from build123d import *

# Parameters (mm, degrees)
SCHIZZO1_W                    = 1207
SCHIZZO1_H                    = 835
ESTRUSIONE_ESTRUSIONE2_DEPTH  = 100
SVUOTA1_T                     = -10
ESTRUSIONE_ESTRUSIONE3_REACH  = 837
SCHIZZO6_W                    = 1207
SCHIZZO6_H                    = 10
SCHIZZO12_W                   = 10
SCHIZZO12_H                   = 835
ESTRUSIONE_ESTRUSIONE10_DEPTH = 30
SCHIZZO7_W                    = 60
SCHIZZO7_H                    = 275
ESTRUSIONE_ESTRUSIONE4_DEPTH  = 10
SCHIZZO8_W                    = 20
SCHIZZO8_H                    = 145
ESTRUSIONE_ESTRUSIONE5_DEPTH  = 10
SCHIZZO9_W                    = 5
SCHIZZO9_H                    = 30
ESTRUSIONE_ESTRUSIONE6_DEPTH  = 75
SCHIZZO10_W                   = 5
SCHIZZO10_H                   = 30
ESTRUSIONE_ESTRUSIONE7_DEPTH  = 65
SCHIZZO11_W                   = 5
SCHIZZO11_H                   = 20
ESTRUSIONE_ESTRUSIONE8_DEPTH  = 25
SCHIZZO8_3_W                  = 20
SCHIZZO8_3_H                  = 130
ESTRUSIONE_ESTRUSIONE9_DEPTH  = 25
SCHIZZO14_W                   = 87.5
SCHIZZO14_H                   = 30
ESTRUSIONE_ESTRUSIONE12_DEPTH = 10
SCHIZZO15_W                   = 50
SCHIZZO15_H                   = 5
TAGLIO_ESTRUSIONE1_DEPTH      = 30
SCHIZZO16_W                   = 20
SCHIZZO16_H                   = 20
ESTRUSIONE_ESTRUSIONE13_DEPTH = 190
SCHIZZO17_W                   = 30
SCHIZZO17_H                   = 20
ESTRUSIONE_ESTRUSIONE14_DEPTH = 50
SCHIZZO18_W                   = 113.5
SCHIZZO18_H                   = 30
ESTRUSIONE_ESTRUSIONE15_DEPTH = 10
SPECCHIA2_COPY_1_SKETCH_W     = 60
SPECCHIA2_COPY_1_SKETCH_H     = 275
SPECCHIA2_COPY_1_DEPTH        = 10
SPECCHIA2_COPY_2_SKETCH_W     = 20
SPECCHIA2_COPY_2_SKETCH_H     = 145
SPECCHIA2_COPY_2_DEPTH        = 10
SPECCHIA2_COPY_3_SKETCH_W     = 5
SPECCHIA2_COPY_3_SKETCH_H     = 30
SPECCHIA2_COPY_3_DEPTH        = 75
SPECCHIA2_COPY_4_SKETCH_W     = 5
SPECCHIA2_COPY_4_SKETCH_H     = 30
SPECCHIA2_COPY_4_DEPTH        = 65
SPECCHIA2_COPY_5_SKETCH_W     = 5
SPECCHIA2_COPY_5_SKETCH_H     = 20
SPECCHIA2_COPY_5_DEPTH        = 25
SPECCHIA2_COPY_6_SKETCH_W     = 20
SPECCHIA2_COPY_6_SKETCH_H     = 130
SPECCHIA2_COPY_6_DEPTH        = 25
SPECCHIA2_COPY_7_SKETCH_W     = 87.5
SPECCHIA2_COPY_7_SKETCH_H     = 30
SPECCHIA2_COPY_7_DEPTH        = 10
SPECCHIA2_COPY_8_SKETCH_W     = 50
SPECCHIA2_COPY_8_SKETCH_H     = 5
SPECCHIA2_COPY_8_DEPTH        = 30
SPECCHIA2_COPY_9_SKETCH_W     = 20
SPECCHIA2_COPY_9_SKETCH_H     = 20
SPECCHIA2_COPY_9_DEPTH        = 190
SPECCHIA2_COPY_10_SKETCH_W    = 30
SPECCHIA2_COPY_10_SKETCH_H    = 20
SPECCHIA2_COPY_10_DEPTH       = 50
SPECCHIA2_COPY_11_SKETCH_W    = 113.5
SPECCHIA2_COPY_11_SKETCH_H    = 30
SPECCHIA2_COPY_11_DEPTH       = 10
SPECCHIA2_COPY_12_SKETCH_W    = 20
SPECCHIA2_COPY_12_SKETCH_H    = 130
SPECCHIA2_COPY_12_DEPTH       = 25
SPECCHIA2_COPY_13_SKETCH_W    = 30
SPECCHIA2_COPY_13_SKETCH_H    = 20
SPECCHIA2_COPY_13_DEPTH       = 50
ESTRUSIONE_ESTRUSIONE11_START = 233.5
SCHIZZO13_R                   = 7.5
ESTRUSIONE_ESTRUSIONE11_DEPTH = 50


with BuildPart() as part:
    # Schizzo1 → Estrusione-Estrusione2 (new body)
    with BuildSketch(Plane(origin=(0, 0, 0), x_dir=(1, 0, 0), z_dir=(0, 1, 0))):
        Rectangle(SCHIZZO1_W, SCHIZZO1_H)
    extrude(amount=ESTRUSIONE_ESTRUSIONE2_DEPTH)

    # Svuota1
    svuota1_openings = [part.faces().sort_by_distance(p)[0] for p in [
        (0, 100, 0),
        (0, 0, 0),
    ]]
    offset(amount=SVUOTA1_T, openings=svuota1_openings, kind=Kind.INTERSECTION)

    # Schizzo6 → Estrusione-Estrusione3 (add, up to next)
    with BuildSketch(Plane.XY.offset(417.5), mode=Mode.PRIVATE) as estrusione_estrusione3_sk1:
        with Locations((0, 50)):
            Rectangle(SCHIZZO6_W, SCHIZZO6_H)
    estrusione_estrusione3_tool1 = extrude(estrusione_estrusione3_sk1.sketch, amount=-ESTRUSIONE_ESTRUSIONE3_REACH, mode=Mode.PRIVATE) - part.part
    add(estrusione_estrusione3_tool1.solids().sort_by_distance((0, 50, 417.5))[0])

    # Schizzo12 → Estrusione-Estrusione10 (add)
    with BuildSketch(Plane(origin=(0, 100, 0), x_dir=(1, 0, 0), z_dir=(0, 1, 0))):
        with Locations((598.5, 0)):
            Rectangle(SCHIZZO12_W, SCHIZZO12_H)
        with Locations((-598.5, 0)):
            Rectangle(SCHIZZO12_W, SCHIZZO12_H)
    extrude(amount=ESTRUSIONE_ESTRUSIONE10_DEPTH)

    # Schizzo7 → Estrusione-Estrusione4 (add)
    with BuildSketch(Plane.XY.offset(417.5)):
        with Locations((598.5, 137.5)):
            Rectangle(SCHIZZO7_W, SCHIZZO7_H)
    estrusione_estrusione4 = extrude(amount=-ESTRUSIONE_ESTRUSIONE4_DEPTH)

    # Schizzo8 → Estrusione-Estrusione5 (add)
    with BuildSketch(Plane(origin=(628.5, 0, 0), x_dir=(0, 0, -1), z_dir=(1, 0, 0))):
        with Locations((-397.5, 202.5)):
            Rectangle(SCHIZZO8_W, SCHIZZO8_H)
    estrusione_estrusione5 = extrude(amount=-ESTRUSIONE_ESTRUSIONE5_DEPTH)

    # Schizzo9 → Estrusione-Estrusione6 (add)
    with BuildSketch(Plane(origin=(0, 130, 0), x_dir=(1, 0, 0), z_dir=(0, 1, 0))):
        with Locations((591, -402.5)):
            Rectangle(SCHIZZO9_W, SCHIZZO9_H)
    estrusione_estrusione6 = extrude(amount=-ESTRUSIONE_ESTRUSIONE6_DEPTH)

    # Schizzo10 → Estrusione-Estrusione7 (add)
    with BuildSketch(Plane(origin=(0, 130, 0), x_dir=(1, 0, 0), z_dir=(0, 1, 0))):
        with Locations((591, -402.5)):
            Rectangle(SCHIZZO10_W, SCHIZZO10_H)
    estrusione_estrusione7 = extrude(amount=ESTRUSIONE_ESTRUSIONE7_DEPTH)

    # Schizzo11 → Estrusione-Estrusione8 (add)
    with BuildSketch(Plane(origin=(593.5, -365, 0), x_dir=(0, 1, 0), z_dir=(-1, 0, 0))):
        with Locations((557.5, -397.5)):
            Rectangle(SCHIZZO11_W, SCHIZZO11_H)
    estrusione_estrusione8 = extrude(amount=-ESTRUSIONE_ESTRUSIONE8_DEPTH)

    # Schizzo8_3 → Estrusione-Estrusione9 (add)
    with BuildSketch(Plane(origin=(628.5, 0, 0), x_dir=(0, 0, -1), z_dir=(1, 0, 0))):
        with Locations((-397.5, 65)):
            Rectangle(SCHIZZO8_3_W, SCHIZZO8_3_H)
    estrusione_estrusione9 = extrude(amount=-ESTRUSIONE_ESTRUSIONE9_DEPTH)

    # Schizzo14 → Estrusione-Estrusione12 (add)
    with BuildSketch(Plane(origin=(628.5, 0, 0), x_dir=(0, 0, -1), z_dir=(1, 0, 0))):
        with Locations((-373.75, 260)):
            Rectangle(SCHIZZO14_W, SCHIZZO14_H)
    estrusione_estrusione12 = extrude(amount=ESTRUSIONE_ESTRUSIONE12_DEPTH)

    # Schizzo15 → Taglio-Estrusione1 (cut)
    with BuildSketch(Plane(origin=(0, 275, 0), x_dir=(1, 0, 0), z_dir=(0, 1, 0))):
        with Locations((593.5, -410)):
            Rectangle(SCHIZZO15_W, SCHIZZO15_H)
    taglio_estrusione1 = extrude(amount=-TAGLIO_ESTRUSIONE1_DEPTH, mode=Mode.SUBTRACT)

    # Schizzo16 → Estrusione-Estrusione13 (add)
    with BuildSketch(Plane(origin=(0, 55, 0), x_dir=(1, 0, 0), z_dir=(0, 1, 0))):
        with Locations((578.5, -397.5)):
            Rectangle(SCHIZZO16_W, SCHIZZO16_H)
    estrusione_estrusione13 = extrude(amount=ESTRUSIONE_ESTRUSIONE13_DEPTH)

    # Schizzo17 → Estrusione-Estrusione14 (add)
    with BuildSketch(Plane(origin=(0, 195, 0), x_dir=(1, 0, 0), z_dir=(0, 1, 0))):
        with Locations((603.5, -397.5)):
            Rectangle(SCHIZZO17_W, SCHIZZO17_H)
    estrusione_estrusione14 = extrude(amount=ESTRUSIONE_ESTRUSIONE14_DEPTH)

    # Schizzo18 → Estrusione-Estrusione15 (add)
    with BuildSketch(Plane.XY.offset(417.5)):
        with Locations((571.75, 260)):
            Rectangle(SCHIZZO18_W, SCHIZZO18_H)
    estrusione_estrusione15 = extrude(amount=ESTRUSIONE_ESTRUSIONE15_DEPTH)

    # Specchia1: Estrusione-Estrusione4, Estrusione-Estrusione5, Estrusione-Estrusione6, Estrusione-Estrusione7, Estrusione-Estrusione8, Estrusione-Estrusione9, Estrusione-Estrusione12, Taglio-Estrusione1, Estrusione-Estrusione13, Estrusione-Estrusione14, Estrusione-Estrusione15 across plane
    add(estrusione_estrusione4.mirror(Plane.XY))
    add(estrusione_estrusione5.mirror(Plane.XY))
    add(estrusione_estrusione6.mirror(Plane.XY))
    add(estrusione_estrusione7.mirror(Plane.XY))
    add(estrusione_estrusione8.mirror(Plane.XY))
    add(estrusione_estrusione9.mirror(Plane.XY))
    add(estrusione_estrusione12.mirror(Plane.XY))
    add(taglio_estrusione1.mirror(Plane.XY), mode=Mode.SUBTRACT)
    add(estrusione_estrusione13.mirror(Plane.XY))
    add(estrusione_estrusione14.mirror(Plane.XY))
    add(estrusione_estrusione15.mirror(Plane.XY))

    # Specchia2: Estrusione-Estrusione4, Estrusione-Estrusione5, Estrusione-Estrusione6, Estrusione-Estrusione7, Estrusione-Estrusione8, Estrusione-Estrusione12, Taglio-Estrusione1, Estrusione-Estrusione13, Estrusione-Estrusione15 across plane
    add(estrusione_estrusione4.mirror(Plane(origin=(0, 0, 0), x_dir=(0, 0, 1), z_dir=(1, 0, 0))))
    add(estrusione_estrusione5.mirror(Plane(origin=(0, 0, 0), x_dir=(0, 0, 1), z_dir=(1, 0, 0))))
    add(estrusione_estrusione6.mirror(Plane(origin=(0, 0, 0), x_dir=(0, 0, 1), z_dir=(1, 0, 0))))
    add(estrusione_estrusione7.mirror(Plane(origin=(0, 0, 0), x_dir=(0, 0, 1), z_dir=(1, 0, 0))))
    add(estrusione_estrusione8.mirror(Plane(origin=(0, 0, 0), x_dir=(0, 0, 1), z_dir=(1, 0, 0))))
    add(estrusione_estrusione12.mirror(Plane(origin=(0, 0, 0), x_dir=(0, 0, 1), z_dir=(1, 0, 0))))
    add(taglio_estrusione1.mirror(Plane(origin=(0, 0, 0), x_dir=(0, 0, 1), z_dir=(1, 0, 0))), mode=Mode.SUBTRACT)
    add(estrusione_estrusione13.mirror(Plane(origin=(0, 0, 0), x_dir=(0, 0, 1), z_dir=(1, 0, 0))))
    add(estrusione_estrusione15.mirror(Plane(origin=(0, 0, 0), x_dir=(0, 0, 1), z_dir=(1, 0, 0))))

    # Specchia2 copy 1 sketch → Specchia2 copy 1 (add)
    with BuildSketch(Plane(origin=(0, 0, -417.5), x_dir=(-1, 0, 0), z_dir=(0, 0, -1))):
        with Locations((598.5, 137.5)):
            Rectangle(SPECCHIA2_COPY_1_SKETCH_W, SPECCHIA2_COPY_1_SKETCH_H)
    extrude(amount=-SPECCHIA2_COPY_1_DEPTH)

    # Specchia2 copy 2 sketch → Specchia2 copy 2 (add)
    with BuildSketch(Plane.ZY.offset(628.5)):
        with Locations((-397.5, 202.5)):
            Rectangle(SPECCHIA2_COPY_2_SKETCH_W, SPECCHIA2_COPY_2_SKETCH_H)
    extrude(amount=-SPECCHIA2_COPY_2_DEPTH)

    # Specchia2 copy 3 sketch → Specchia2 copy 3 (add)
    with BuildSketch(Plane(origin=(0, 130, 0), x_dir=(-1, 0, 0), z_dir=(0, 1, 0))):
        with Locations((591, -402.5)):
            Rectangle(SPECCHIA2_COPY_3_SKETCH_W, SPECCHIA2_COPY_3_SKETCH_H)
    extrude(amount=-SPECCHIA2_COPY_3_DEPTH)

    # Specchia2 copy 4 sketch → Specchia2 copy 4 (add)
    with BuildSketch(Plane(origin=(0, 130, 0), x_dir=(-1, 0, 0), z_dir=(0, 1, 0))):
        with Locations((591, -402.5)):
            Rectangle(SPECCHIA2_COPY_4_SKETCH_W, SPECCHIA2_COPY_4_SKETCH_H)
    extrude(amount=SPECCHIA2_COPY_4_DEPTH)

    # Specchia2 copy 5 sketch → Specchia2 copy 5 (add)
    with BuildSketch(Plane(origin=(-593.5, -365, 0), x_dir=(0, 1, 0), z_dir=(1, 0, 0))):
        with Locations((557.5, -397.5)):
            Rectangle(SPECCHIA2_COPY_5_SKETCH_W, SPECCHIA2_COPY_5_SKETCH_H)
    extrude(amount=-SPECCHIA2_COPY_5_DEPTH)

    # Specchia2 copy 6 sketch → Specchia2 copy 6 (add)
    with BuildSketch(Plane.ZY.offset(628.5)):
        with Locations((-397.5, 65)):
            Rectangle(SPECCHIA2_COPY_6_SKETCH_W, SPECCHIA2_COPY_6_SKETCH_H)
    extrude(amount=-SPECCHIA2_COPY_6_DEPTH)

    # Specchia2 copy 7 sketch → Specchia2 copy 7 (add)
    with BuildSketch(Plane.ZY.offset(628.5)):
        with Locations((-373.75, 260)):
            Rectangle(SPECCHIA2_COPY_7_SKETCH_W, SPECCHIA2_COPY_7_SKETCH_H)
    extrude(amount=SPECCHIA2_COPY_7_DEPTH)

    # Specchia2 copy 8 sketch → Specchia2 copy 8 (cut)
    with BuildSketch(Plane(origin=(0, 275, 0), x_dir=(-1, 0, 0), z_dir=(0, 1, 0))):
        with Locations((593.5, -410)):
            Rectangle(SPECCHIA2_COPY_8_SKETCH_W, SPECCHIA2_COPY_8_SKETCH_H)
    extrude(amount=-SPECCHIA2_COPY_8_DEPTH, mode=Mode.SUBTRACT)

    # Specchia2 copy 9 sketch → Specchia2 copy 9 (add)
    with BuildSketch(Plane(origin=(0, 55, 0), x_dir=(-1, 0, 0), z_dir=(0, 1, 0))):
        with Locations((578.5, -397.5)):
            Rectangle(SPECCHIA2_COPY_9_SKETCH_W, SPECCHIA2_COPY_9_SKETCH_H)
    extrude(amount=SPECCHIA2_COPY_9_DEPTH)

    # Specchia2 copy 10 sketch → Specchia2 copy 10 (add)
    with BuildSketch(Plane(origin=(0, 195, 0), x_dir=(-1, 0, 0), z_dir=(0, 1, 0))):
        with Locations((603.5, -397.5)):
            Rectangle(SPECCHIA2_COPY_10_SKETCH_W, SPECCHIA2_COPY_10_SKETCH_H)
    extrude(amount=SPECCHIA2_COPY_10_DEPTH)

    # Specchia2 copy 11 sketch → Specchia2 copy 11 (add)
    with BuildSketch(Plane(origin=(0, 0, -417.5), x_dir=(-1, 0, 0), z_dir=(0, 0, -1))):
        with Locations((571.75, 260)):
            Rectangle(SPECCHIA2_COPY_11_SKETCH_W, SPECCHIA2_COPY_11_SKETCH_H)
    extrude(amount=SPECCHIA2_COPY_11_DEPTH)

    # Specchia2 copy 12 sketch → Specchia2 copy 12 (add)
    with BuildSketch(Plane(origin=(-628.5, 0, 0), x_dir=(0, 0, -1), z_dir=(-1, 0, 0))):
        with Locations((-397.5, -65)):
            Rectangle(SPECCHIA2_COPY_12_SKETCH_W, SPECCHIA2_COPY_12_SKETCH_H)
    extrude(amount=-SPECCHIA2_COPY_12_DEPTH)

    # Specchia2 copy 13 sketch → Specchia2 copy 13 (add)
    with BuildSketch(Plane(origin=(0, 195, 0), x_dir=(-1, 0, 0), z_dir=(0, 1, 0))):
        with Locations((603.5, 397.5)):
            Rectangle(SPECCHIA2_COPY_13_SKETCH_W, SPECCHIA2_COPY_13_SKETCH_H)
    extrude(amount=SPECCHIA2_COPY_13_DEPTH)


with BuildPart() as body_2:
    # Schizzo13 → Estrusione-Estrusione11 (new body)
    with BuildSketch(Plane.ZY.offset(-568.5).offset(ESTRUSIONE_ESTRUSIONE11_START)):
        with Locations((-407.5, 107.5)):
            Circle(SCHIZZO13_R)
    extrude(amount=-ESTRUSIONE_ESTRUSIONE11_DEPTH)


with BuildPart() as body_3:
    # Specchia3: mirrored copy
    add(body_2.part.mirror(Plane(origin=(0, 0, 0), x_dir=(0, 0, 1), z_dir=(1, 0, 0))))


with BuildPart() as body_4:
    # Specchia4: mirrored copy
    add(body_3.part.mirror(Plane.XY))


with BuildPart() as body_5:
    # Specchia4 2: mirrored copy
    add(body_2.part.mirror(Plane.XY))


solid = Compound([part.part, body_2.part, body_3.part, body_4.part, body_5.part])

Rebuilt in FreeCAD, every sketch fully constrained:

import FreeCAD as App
import Part
import Sketcher
from FreeCAD import Vector
Q = App.Units.Quantity


def faces_at(feature, points):
    """Names of the faces that lie closest to the given points."""
    faces = feature.Shape.Faces
    near = lambda p: min(range(len(faces)), key=lambda i: faces[i].distToShape(Part.Vertex(*p))[0])
    return sorted({f"Face{near(p) + 1}" for p in points})

doc = App.newDocument("Part")
body = doc.addObject("PartDesign::Body", "Body")

sketch1 = body.newObject("Sketcher::SketchObject", "Sketch")
sketch1.AttachmentSupport = (doc.getObject("XZ_Plane"), [""])
sketch1.MapMode = "FlatFace"
sketch1.addGeometry([
    Part.LineSegment(Vector(-604, -418, 0), Vector(-604, 418, 0)),
    Part.LineSegment(Vector(-604, 418, 0), Vector(604, 418, 0)),
    Part.LineSegment(Vector(604, 418, 0), Vector(604, -418, 0)),
    Part.LineSegment(Vector(604, -418, 0), Vector(-604, -418, 0)),
], False)
sketch1.addConstraint([
    Sketcher.Constraint("Coincident", 0, 2, 1, 1),
    Sketcher.Constraint("Coincident", 1, 2, 2, 1),
    Sketcher.Constraint("Coincident", 2, 2, 3, 1),
    Sketcher.Constraint("Coincident", 3, 2, 0, 1),
    Sketcher.Constraint("Vertical", 0),
    Sketcher.Constraint("Horizontal", 1),
    Sketcher.Constraint("Vertical", 2),
    Sketcher.Constraint("Horizontal", 3),
    Sketcher.Constraint("Symmetric", 0, 2, 2, 2, -1, 1),
    Sketcher.Constraint("DistanceX", 1, 1, 1, 2, Q("1207 mm")),
    Sketcher.Constraint("DistanceY", 0, 1, 0, 2, Q("835 mm")),
])
pad1 = body.newObject("PartDesign::Pad", "Pad")
pad1.Profile = sketch1
pad1.Length = 100
pad1.Reversed = True
doc.recompute()

thickness = body.newObject("PartDesign::Thickness", "Thickness")
thickness.Base = (pad1, faces_at(pad1, [(0, 100, 0), (0, 0, 0)]))
thickness.Value = 10
thickness.Reversed = True
thickness.Join = "Intersection"

sketch2 = body.newObject("Sketcher::SketchObject", "Sketch001")
sketch2.AttachmentSupport = (doc.getObject("XY_Plane"), [""])
sketch2.MapMode = "FlatFace"
sketch2.AttachmentOffset = App.Placement(Vector(0, 0, 417.5), App.Rotation())
sketch2.addGeometry([
    Part.LineSegment(Vector(-604, 55, 0), Vector(-604, 45, 0)),
    Part.LineSegment(Vector(-604, 45, 0), Vector(604, 45, 0)),
    Part.LineSegment(Vector(604, 45, 0), Vector(604, 55, 0)),
    Part.LineSegment(Vector(604, 55, 0), Vector(-604, 55, 0)),
], False)
sketch2.addConstraint([
    Sketcher.Constraint("Coincident", 0, 2, 1, 1),
    Sketcher.Constraint("Coincident", 1, 2, 2, 1),
    Sketcher.Constraint("Coincident", 2, 2, 3, 1),
    Sketcher.Constraint("Coincident", 3, 2, 0, 1),
    Sketcher.Constraint("Vertical", 0),
    Sketcher.Constraint("Horizontal", 1),
    Sketcher.Constraint("Vertical", 2),
    Sketcher.Constraint("Horizontal", 3),
    Sketcher.Constraint("DistanceX", 1, 1, 1, 2, Q("1207 mm")),
    Sketcher.Constraint("DistanceY", 0, 2, 0, 1, Q("10 mm")),
    Sketcher.Constraint("DistanceY", -1, 1, 0, 2, Q("45 mm")),
    Sketcher.Constraint("DistanceX", 0, 2, -1, 1, Q("603.5 mm")),
])
pad2 = body.newObject("PartDesign::Pad", "Pad001")
pad2.Profile = sketch2
pad2.Length = 825
pad2.Reversed = True

sketch3 = body.newObject("Sketcher::SketchObject", "Sketch002")
sketch3.AttachmentSupport = (doc.getObject("XZ_Plane"), [""])
sketch3.MapMode = "FlatFace"
sketch3.AttachmentOffset = App.Placement(Vector(0, 0, -100), App.Rotation())
sketch3.addGeometry([
    Part.LineSegment(Vector(594, -418, 0), Vector(594, 418, 0)),
    Part.LineSegment(Vector(594, 418, 0), Vector(604, 418, 0)),
    Part.LineSegment(Vector(604, 418, 0), Vector(604, -418, 0)),
    Part.LineSegment(Vector(604, -418, 0), Vector(594, -418, 0)),
    Part.LineSegment(Vector(-604, -418, 0), Vector(-604, 418, 0)),
    Part.LineSegment(Vector(-604, 418, 0), Vector(-594, 418, 0)),
    Part.LineSegment(Vector(-594, 418, 0), Vector(-594, -418, 0)),
    Part.LineSegment(Vector(-594, -418, 0), Vector(-604, -418, 0)),
], False)
sketch3.addConstraint([
    Sketcher.Constraint("Coincident", 0, 2, 1, 1),
    Sketcher.Constraint("Coincident", 1, 2, 2, 1),
    Sketcher.Constraint("Coincident", 2, 2, 3, 1),
    Sketcher.Constraint("Coincident", 3, 2, 0, 1),
    Sketcher.Constraint("Coincident", 4, 2, 5, 1),
    Sketcher.Constraint("Coincident", 5, 2, 6, 1),
    Sketcher.Constraint("Coincident", 6, 2, 7, 1),
    Sketcher.Constraint("Coincident", 7, 2, 4, 1),
    Sketcher.Constraint("Vertical", 0),
    Sketcher.Constraint("Horizontal", 1),
    Sketcher.Constraint("Vertical", 2),
    Sketcher.Constraint("Horizontal", 3),
    Sketcher.Constraint("Vertical", 4),
    Sketcher.Constraint("Horizontal", 5),
    Sketcher.Constraint("Vertical", 6),
    Sketcher.Constraint("Horizontal", 7),
    Sketcher.Constraint("Symmetric", 2, 2, 4, 2, -1, 1),
    Sketcher.Constraint("Symmetric", 0, 2, 6, 2, -1, 1),
    Sketcher.Constraint("Horizontal", 1, 2, 4, 2),
    Sketcher.Constraint("DistanceX", 1, 1, 1, 2, Q("10 mm")),
    Sketcher.Constraint("DistanceY", 0, 1, 0, 2, Q("835 mm")),
    Sketcher.Constraint("DistanceX", 4, 2, 0, 2, Q("1197 mm")),
])
pad3 = body.newObject("PartDesign::Pad", "Pad002")
pad3.Profile = sketch3
pad3.Length = 30
pad3.Reversed = True

sketch4 = body.newObject("Sketcher::SketchObject", "Sketch003")
sketch4.AttachmentSupport = (doc.getObject("XY_Plane"), [""])
sketch4.MapMode = "FlatFace"
sketch4.AttachmentOffset = App.Placement(Vector(0, 0, 417.5), App.Rotation())
sketch4.addGeometry([
    Part.LineSegment(Vector(568, 275, 0), Vector(568, 0, 0)),
    Part.LineSegment(Vector(568, 0, 0), Vector(628, 0, 0)),
    Part.LineSegment(Vector(628, 0, 0), Vector(628, 275, 0)),
    Part.LineSegment(Vector(628, 275, 0), Vector(568, 275, 0)),
], False)
sketch4.addConstraint([
    Sketcher.Constraint("Coincident", 0, 2, 1, 1),
    Sketcher.Constraint("Coincident", 1, 2, 2, 1),
    Sketcher.Constraint("Coincident", 2, 2, 3, 1),
    Sketcher.Constraint("Coincident", 3, 2, 0, 1),
    Sketcher.Constraint("Vertical", 0),
    Sketcher.Constraint("Horizontal", 1),
    Sketcher.Constraint("Vertical", 2),
    Sketcher.Constraint("Horizontal", 3),
    Sketcher.Constraint("PointOnObject", 0, 2, -1),
    Sketcher.Constraint("DistanceX", 1, 1, 1, 2, Q("60 mm")),
    Sketcher.Constraint("DistanceY", 0, 2, 0, 1, Q("275 mm")),
    Sketcher.Constraint("DistanceX", -1, 1, 0, 2, Q("568.5 mm")),
])
pad4 = body.newObject("PartDesign::Pad", "Pad003")
pad4.Profile = sketch4
pad4.Length = 10
pad4.Reversed = True

sketch5 = body.newObject("Sketcher::SketchObject", "Sketch004")
sketch5.AttachmentSupport = (doc.getObject("YZ_Plane"), [""])
sketch5.MapMode = "FlatFace"
sketch5.AttachmentOffset = App.Placement(Vector(0, 0, 628.5), App.Rotation())
sketch5.addGeometry([
    Part.LineSegment(Vector(275, 408, 0), Vector(130, 408, 0)),
    Part.LineSegment(Vector(130, 408, 0), Vector(130, 388, 0)),
    Part.LineSegment(Vector(130, 388, 0), Vector(275, 388, 0)),
    Part.LineSegment(Vector(275, 388, 0), Vector(275, 408, 0)),
], False)
sketch5.addConstraint([
    Sketcher.Constraint("Coincident", 0, 2, 1, 1),
    Sketcher.Constraint("Coincident", 1, 2, 2, 1),
    Sketcher.Constraint("Coincident", 2, 2, 3, 1),
    Sketcher.Constraint("Coincident", 3, 2, 0, 1),
    Sketcher.Constraint("Horizontal", 0),
    Sketcher.Constraint("Vertical", 1),
    Sketcher.Constraint("Horizontal", 2),
    Sketcher.Constraint("Vertical", 3),
    Sketcher.Constraint("DistanceX", 0, 2, 0, 1, Q("145 mm")),
    Sketcher.Constraint("DistanceY", 1, 2, 1, 1, Q("20 mm")),
    Sketcher.Constraint("DistanceX", -1, 1, 0, 2, Q("130 mm")),
    Sketcher.Constraint("DistanceY", -1, 1, 0, 2, Q("407.5 mm")),
])
pad5 = body.newObject("PartDesign::Pad", "Pad004")
pad5.Profile = sketch5
pad5.Length = 10
pad5.Reversed = True

sketch6 = body.newObject("Sketcher::SketchObject", "Sketch005")
sketch6.AttachmentSupport = (doc.getObject("XZ_Plane"), [""])
sketch6.MapMode = "FlatFace"
sketch6.AttachmentOffset = App.Placement(Vector(0, 0, -130), App.Rotation())
sketch6.addGeometry([
    Part.LineSegment(Vector(588, 388, 0), Vector(588, 418, 0)),
    Part.LineSegment(Vector(588, 418, 0), Vector(594, 418, 0)),
    Part.LineSegment(Vector(594, 418, 0), Vector(594, 388, 0)),
    Part.LineSegment(Vector(594, 388, 0), Vector(588, 388, 0)),
], False)
sketch6.addConstraint([
    Sketcher.Constraint("Coincident", 0, 2, 1, 1),
    Sketcher.Constraint("Coincident", 1, 2, 2, 1),
    Sketcher.Constraint("Coincident", 2, 2, 3, 1),
    Sketcher.Constraint("Coincident", 3, 2, 0, 1),
    Sketcher.Constraint("Vertical", 0),
    Sketcher.Constraint("Horizontal", 1),
    Sketcher.Constraint("Vertical", 2),
    Sketcher.Constraint("Horizontal", 3),
    Sketcher.Constraint("DistanceX", 1, 1, 1, 2, Q("5 mm")),
    Sketcher.Constraint("DistanceY", 0, 1, 0, 2, Q("30 mm")),
    Sketcher.Constraint("DistanceX", -1, 1, 0, 2, Q("588.5 mm")),
    Sketcher.Constraint("DistanceY", -1, 1, 0, 2, Q("417.5 mm")),
])
pad6 = body.newObject("PartDesign::Pad", "Pad005")
pad6.Profile = sketch6
pad6.Length = 75

sketch7 = body.newObject("Sketcher::SketchObject", "Sketch006")
sketch7.AttachmentSupport = (doc.getObject("XZ_Plane"), [""])
sketch7.MapMode = "FlatFace"
sketch7.AttachmentOffset = App.Placement(Vector(0, 0, -130), App.Rotation())
sketch7.addGeometry([
    Part.LineSegment(Vector(588, 388, 0), Vector(588, 418, 0)),
    Part.LineSegment(Vector(588, 418, 0), Vector(594, 418, 0)),
    Part.LineSegment(Vector(594, 418, 0), Vector(594, 388, 0)),
    Part.LineSegment(Vector(594, 388, 0), Vector(588, 388, 0)),
], False)
sketch7.addConstraint([
    Sketcher.Constraint("Coincident", 0, 2, 1, 1),
    Sketcher.Constraint("Coincident", 1, 2, 2, 1),
    Sketcher.Constraint("Coincident", 2, 2, 3, 1),
    Sketcher.Constraint("Coincident", 3, 2, 0, 1),
    Sketcher.Constraint("Vertical", 0),
    Sketcher.Constraint("Horizontal", 1),
    Sketcher.Constraint("Vertical", 2),
    Sketcher.Constraint("Horizontal", 3),
    Sketcher.Constraint("DistanceX", 1, 1, 1, 2, Q("5 mm")),
    Sketcher.Constraint("DistanceY", 0, 1, 0, 2, Q("30 mm")),
    Sketcher.Constraint("DistanceX", -1, 1, 0, 2, Q("588.5 mm")),
    Sketcher.Constraint("DistanceY", -1, 1, 0, 2, Q("417.5 mm")),
])
pad7 = body.newObject("PartDesign::Pad", "Pad006")
pad7.Profile = sketch7
pad7.Length = 65
pad7.Reversed = True

sketch8 = body.newObject("Sketcher::SketchObject", "Sketch007")
sketch8.AttachmentSupport = (doc.getObject("YZ_Plane"), [""])
sketch8.MapMode = "FlatFace"
sketch8.AttachmentOffset = App.Placement(Vector(0, 0, 593.5), App.Rotation())
sketch8.addGeometry([
    Part.LineSegment(Vector(190, 388, 0), Vector(190, 408, 0)),
    Part.LineSegment(Vector(190, 408, 0), Vector(195, 408, 0)),
    Part.LineSegment(Vector(195, 408, 0), Vector(195, 388, 0)),
    Part.LineSegment(Vector(195, 388, 0), Vector(190, 388, 0)),
], False)
sketch8.addConstraint([
    Sketcher.Constraint("Coincident", 0, 2, 1, 1),
    Sketcher.Constraint("Coincident", 1, 2, 2, 1),
    Sketcher.Constraint("Coincident", 2, 2, 3, 1),
    Sketcher.Constraint("Coincident", 3, 2, 0, 1),
    Sketcher.Constraint("Vertical", 0),
    Sketcher.Constraint("Horizontal", 1),
    Sketcher.Constraint("Vertical", 2),
    Sketcher.Constraint("Horizontal", 3),
    Sketcher.Constraint("DistanceX", 1, 1, 1, 2, Q("5 mm")),
    Sketcher.Constraint("DistanceY", 0, 1, 0, 2, Q("20 mm")),
    Sketcher.Constraint("DistanceX", -1, 1, 0, 2, Q("190 mm")),
    Sketcher.Constraint("DistanceY", -1, 1, 0, 2, Q("407.5 mm")),
])
pad8 = body.newObject("PartDesign::Pad", "Pad007")
pad8.Profile = sketch8
pad8.Length = 25

sketch9 = body.newObject("Sketcher::SketchObject", "Sketch008")
sketch9.AttachmentSupport = (doc.getObject("YZ_Plane"), [""])
sketch9.MapMode = "FlatFace"
sketch9.AttachmentOffset = App.Placement(Vector(0, 0, 628.5), App.Rotation())
sketch9.addGeometry([
    Part.LineSegment(Vector(130, 408, 0), Vector(0, 408, 0)),
    Part.LineSegment(Vector(0, 408, 0), Vector(0, 388, 0)),
    Part.LineSegment(Vector(0, 388, 0), Vector(130, 388, 0)),
    Part.LineSegment(Vector(130, 388, 0), Vector(130, 408, 0)),
], False)
sketch9.addConstraint([
    Sketcher.Constraint("Coincident", 0, 2, 1, 1),
    Sketcher.Constraint("Coincident", 1, 2, 2, 1),
    Sketcher.Constraint("Coincident", 2, 2, 3, 1),
    Sketcher.Constraint("Coincident", 3, 2, 0, 1),
    Sketcher.Constraint("Horizontal", 0),
    Sketcher.Constraint("Vertical", 1),
    Sketcher.Constraint("Horizontal", 2),
    Sketcher.Constraint("Vertical", 3),
    Sketcher.Constraint("PointOnObject", 0, 2, -2),
    Sketcher.Constraint("DistanceX", 0, 2, 0, 1, Q("130 mm")),
    Sketcher.Constraint("DistanceY", 1, 2, 1, 1, Q("20 mm")),
    Sketcher.Constraint("DistanceY", -1, 1, 0, 2, Q("407.5 mm")),
])
pad9 = body.newObject("PartDesign::Pad", "Pad008")
pad9.Profile = sketch9
pad9.Length = 25
pad9.Reversed = True

sketch10 = body.newObject("Sketcher::SketchObject", "Sketch009")
sketch10.AttachmentSupport = (doc.getObject("YZ_Plane"), [""])
sketch10.MapMode = "FlatFace"
sketch10.AttachmentOffset = App.Placement(Vector(0, 0, 628.5), App.Rotation())
sketch10.addGeometry([
    Part.LineSegment(Vector(275, 418, 0), Vector(245, 418, 0)),
    Part.LineSegment(Vector(245, 418, 0), Vector(245, 330, 0)),
    Part.LineSegment(Vector(245, 330, 0), Vector(275, 330, 0)),
    Part.LineSegment(Vector(275, 330, 0), Vector(275, 418, 0)),
], False)
sketch10.addConstraint([
    Sketcher.Constraint("Coincident", 0, 2, 1, 1),
    Sketcher.Constraint("Coincident", 1, 2, 2, 1),
    Sketcher.Constraint("Coincident", 2, 2, 3, 1),
    Sketcher.Constraint("Coincident", 3, 2, 0, 1),
    Sketcher.Constraint("Horizontal", 0),
    Sketcher.Constraint("Vertical", 1),
    Sketcher.Constraint("Horizontal", 2),
    Sketcher.Constraint("Vertical", 3),
    Sketcher.Constraint("DistanceX", 0, 2, 0, 1, Q("30 mm")),
    Sketcher.Constraint("DistanceY", 1, 2, 1, 1, Q("87.5 mm")),
    Sketcher.Constraint("DistanceX", -1, 1, 0, 2, Q("245 mm")),
    Sketcher.Constraint("DistanceY", -1, 1, 1, 2, Q("330 mm")),
])
pad10 = body.newObject("PartDesign::Pad", "Pad009")
pad10.Profile = sketch10
pad10.Length = 10

sketch11 = body.newObject("Sketcher::SketchObject", "Sketch010")
sketch11.AttachmentSupport = (doc.getObject("XZ_Plane"), [""])
sketch11.MapMode = "FlatFace"
sketch11.AttachmentOffset = App.Placement(Vector(0, 0, -275), App.Rotation())
sketch11.addGeometry([
    Part.LineSegment(Vector(568, 408, 0), Vector(568, 412, 0)),
    Part.LineSegment(Vector(568, 412, 0), Vector(618, 412, 0)),
    Part.LineSegment(Vector(618, 412, 0), Vector(618, 408, 0)),
    Part.LineSegment(Vector(618, 408, 0), Vector(568, 408, 0)),
], False)
sketch11.addConstraint([
    Sketcher.Constraint("Coincident", 0, 2, 1, 1),
    Sketcher.Constraint("Coincident", 1, 2, 2, 1),
    Sketcher.Constraint("Coincident", 2, 2, 3, 1),
    Sketcher.Constraint("Coincident", 3, 2, 0, 1),
    Sketcher.Constraint("Vertical", 0),
    Sketcher.Constraint("Horizontal", 1),
    Sketcher.Constraint("Vertical", 2),
    Sketcher.Constraint("Horizontal", 3),
    Sketcher.Constraint("DistanceX", 1, 1, 1, 2, Q("50 mm")),
    Sketcher.Constraint("DistanceY", 0, 1, 0, 2, Q("5 mm")),
    Sketcher.Constraint("DistanceX", -1, 1, 0, 2, Q("568.5 mm")),
    Sketcher.Constraint("DistanceY", -1, 1, 0, 2, Q("412.5 mm")),
])
pocket1 = body.newObject("PartDesign::Pocket", "Pocket")
pocket1.Profile = sketch11
pocket1.Length = 30
pocket1.Reversed = True

sketch12 = body.newObject("Sketcher::SketchObject", "Sketch011")
sketch12.AttachmentSupport = (doc.getObject("XZ_Plane"), [""])
sketch12.MapMode = "FlatFace"
sketch12.AttachmentOffset = App.Placement(Vector(0, 0, -55), App.Rotation())
sketch12.addGeometry([
    Part.LineSegment(Vector(568, 388, 0), Vector(568, 408, 0)),
    Part.LineSegment(Vector(568, 408, 0), Vector(588, 408, 0)),
    Part.LineSegment(Vector(588, 408, 0), Vector(588, 388, 0)),
    Part.LineSegment(Vector(588, 388, 0), Vector(568, 388, 0)),
], False)
sketch12.addConstraint([
    Sketcher.Constraint("Coincident", 0, 2, 1, 1),
    Sketcher.Constraint("Coincident", 1, 2, 2, 1),
    Sketcher.Constraint("Coincident", 2, 2, 3, 1),
    Sketcher.Constraint("Coincident", 3, 2, 0, 1),
    Sketcher.Constraint("Vertical", 0),
    Sketcher.Constraint("Horizontal", 1),
    Sketcher.Constraint("Vertical", 2),
    Sketcher.Constraint("Horizontal", 3),
    Sketcher.Constraint("Equal", 3, 0),
    Sketcher.Constraint("DistanceX", 1, 1, 1, 2, Q("20 mm")),
    Sketcher.Constraint("DistanceX", -1, 1, 0, 2, Q("568.5 mm")),
    Sketcher.Constraint("DistanceY", -1, 1, 0, 2, Q("407.5 mm")),
])
pad11 = body.newObject("PartDesign::Pad", "Pad010")
pad11.Profile = sketch12
pad11.Length = 190
pad11.Reversed = True

sketch13 = body.newObject("Sketcher::SketchObject", "Sketch012")
sketch13.AttachmentSupport = (doc.getObject("XZ_Plane"), [""])
sketch13.MapMode = "FlatFace"
sketch13.AttachmentOffset = App.Placement(Vector(0, 0, -195), App.Rotation())
sketch13.addGeometry([
    Part.LineSegment(Vector(588, 388, 0), Vector(588, 408, 0)),
    Part.LineSegment(Vector(588, 408, 0), Vector(618, 408, 0)),
    Part.LineSegment(Vector(618, 408, 0), Vector(618, 388, 0)),
    Part.LineSegment(Vector(618, 388, 0), Vector(588, 388, 0)),
], False)
sketch13.addConstraint([
    Sketcher.Constraint("Coincident", 0, 2, 1, 1),
    Sketcher.Constraint("Coincident", 1, 2, 2, 1),
    Sketcher.Constraint("Coincident", 2, 2, 3, 1),
    Sketcher.Constraint("Coincident", 3, 2, 0, 1),
    Sketcher.Constraint("Vertical", 0),
    Sketcher.Constraint("Horizontal", 1),
    Sketcher.Constraint("Vertical", 2),
    Sketcher.Constraint("Horizontal", 3),
    Sketcher.Constraint("DistanceX", 1, 1, 1, 2, Q("30 mm")),
    Sketcher.Constraint("DistanceY", 0, 1, 0, 2, Q("20 mm")),
    Sketcher.Constraint("DistanceX", -1, 1, 0, 2, Q("588.5 mm")),
    Sketcher.Constraint("DistanceY", -1, 1, 0, 2, Q("407.5 mm")),
])
pad12 = body.newObject("PartDesign::Pad", "Pad011")
pad12.Profile = sketch13
pad12.Length = 50
pad12.Reversed = True

sketch14 = body.newObject("Sketcher::SketchObject", "Sketch013")
sketch14.AttachmentSupport = (doc.getObject("XY_Plane"), [""])
sketch14.MapMode = "FlatFace"
sketch14.AttachmentOffset = App.Placement(Vector(0, 0, 417.5), App.Rotation())
sketch14.addGeometry([
    Part.LineSegment(Vector(515, 275, 0), Vector(515, 245, 0)),
    Part.LineSegment(Vector(515, 245, 0), Vector(628, 245, 0)),
    Part.LineSegment(Vector(628, 245, 0), Vector(628, 275, 0)),
    Part.LineSegment(Vector(628, 275, 0), Vector(515, 275, 0)),
], False)
sketch14.addConstraint([
    Sketcher.Constraint("Coincident", 0, 2, 1, 1),
    Sketcher.Constraint("Coincident", 1, 2, 2, 1),
    Sketcher.Constraint("Coincident", 2, 2, 3, 1),
    Sketcher.Constraint("Coincident", 3, 2, 0, 1),
    Sketcher.Constraint("Vertical", 0),
    Sketcher.Constraint("Horizontal", 1),
    Sketcher.Constraint("Vertical", 2),
    Sketcher.Constraint("Horizontal", 3),
    Sketcher.Constraint("DistanceY", 0, 2, 0, 1, Q("30 mm")),
    Sketcher.Constraint("DistanceX", 1, 1, 1, 2, Q("113.5 mm")),
    Sketcher.Constraint("DistanceX", -1, 1, 0, 2, Q("515 mm")),
    Sketcher.Constraint("DistanceY", -1, 1, 0, 2, Q("245 mm")),
])
pad13 = body.newObject("PartDesign::Pad", "Pad012")
pad13.Profile = sketch14
pad13.Length = 10
doc.recompute()

mirrored = body.newObject("PartDesign::Mirrored", "Mirrored")
mirrored.Originals = [pad4, pad5, pad6, pad7, pad8, pad9, pad10, pocket1, pad11, pad12, pad13]
mirrored.MirrorPlane = (doc.getObject("XY_Plane"), [""])
body.Tip = mirrored
doc.recompute()

mirrored2 = body.newObject("PartDesign::Mirrored", "Mirrored001")
mirrored2.Originals = [pad4, pad5, pad6, pad7, pad8, pad10, pocket1, pad11, pad13]
mirrored2.MirrorPlane = (doc.getObject("YZ_Plane"), [""])
body.Tip = mirrored2

sketch15 = body.newObject("Sketcher::SketchObject", "Sketch014")
sketch15.AttachmentSupport = (doc.getObject("XY_Plane"), [""])
sketch15.MapMode = "FlatFace"
sketch15.AttachmentOffset = App.Placement(Vector(0, 0, -417.5), App.Rotation())
sketch15.addGeometry([
    Part.LineSegment(Vector(-568, 275, 0), Vector(-568, 0, 0)),
    Part.LineSegment(Vector(-568, 0, 0), Vector(-628, 0, 0)),
    Part.LineSegment(Vector(-628, 0, 0), Vector(-628, 275, 0)),
    Part.LineSegment(Vector(-628, 275, 0), Vector(-568, 275, 0)),
], False)
sketch15.addConstraint([
    Sketcher.Constraint("Coincident", 0, 2, 1, 1),
    Sketcher.Constraint("Coincident", 1, 2, 2, 1),
    Sketcher.Constraint("Coincident", 2, 2, 3, 1),
    Sketcher.Constraint("Coincident", 3, 2, 0, 1),
    Sketcher.Constraint("Vertical", 0),
    Sketcher.Constraint("Horizontal", 1),
    Sketcher.Constraint("Vertical", 2),
    Sketcher.Constraint("Horizontal", 3),
    Sketcher.Constraint("PointOnObject", 0, 2, -1),
    Sketcher.Constraint("DistanceX", 1, 2, 1, 1, Q("60 mm")),
    Sketcher.Constraint("DistanceY", 0, 2, 0, 1, Q("275 mm")),
    Sketcher.Constraint("DistanceX", 0, 2, -1, 1, Q("568.5 mm")),
])
pad14 = body.newObject("PartDesign::Pad", "Pad013")
pad14.Profile = sketch15
pad14.Length = 10

sketch16 = body.newObject("Sketcher::SketchObject", "Sketch015")
sketch16.AttachmentSupport = (doc.getObject("YZ_Plane"), [""])
sketch16.MapMode = "FlatFace"
sketch16.AttachmentOffset = App.Placement(Vector(0, 0, -628.5), App.Rotation())
sketch16.addGeometry([
    Part.LineSegment(Vector(275, -408, 0), Vector(130, -408, 0)),
    Part.LineSegment(Vector(130, -408, 0), Vector(130, -388, 0)),
    Part.LineSegment(Vector(130, -388, 0), Vector(275, -388, 0)),
    Part.LineSegment(Vector(275, -388, 0), Vector(275, -408, 0)),
], False)
sketch16.addConstraint([
    Sketcher.Constraint("Coincident", 0, 2, 1, 1),
    Sketcher.Constraint("Coincident", 1, 2, 2, 1),
    Sketcher.Constraint("Coincident", 2, 2, 3, 1),
    Sketcher.Constraint("Coincident", 3, 2, 0, 1),
    Sketcher.Constraint("Horizontal", 0),
    Sketcher.Constraint("Vertical", 1),
    Sketcher.Constraint("Horizontal", 2),
    Sketcher.Constraint("Vertical", 3),
    Sketcher.Constraint("DistanceX", 0, 2, 0, 1, Q("145 mm")),
    Sketcher.Constraint("DistanceY", 1, 1, 1, 2, Q("20 mm")),
    Sketcher.Constraint("DistanceX", -1, 1, 0, 2, Q("130 mm")),
    Sketcher.Constraint("DistanceY", 0, 2, -1, 1, Q("407.5 mm")),
])
pad15 = body.newObject("PartDesign::Pad", "Pad014")
pad15.Profile = sketch16
pad15.Length = 10

sketch17 = body.newObject("Sketcher::SketchObject", "Sketch016")
sketch17.AttachmentSupport = (doc.getObject("XZ_Plane"), [""])
sketch17.MapMode = "FlatFace"
sketch17.AttachmentOffset = App.Placement(Vector(0, 0, -130), App.Rotation())
sketch17.addGeometry([
    Part.LineSegment(Vector(-588, -388, 0), Vector(-588, -418, 0)),
    Part.LineSegment(Vector(-588, -418, 0), Vector(-594, -418, 0)),
    Part.LineSegment(Vector(-594, -418, 0), Vector(-594, -388, 0)),
    Part.LineSegment(Vector(-594, -388, 0), Vector(-588, -388, 0)),
], False)
sketch17.addConstraint([
    Sketcher.Constraint("Coincident", 0, 2, 1, 1),
    Sketcher.Constraint("Coincident", 1, 2, 2, 1),
    Sketcher.Constraint("Coincident", 2, 2, 3, 1),
    Sketcher.Constraint("Coincident", 3, 2, 0, 1),
    Sketcher.Constraint("Vertical", 0),
    Sketcher.Constraint("Horizontal", 1),
    Sketcher.Constraint("Vertical", 2),
    Sketcher.Constraint("Horizontal", 3),
    Sketcher.Constraint("DistanceX", 1, 2, 1, 1, Q("5 mm")),
    Sketcher.Constraint("DistanceY", 0, 2, 0, 1, Q("30 mm")),
    Sketcher.Constraint("DistanceX", 0, 2, -1, 1, Q("588.5 mm")),
    Sketcher.Constraint("DistanceY", 0, 2, -1, 1, Q("417.5 mm")),
])
pad16 = body.newObject("PartDesign::Pad", "Pad015")
pad16.Profile = sketch17
pad16.Length = 75

sketch18 = body.newObject("Sketcher::SketchObject", "Sketch017")
sketch18.AttachmentSupport = (doc.getObject("XZ_Plane"), [""])
sketch18.MapMode = "FlatFace"
sketch18.AttachmentOffset = App.Placement(Vector(0, 0, -130), App.Rotation())
sketch18.addGeometry([
    Part.LineSegment(Vector(-588, -388, 0), Vector(-588, -418, 0)),
    Part.LineSegment(Vector(-588, -418, 0), Vector(-594, -418, 0)),
    Part.LineSegment(Vector(-594, -418, 0), Vector(-594, -388, 0)),
    Part.LineSegment(Vector(-594, -388, 0), Vector(-588, -388, 0)),
], False)
sketch18.addConstraint([
    Sketcher.Constraint("Coincident", 0, 2, 1, 1),
    Sketcher.Constraint("Coincident", 1, 2, 2, 1),
    Sketcher.Constraint("Coincident", 2, 2, 3, 1),
    Sketcher.Constraint("Coincident", 3, 2, 0, 1),
    Sketcher.Constraint("Vertical", 0),
    Sketcher.Constraint("Horizontal", 1),
    Sketcher.Constraint("Vertical", 2),
    Sketcher.Constraint("Horizontal", 3),
    Sketcher.Constraint("DistanceX", 1, 2, 1, 1, Q("5 mm")),
    Sketcher.Constraint("DistanceY", 0, 2, 0, 1, Q("30 mm")),
    Sketcher.Constraint("DistanceX", 0, 2, -1, 1, Q("588.5 mm")),
    Sketcher.Constraint("DistanceY", 0, 2, -1, 1, Q("417.5 mm")),
])
pad17 = body.newObject("PartDesign::Pad", "Pad016")
pad17.Profile = sketch18
pad17.Length = 65
pad17.Reversed = True

sketch19 = body.newObject("Sketcher::SketchObject", "Sketch018")
sketch19.AttachmentSupport = (doc.getObject("YZ_Plane"), [""])
sketch19.MapMode = "FlatFace"
sketch19.AttachmentOffset = App.Placement(Vector(0, 0, -593.5), App.Rotation())
sketch19.addGeometry([
    Part.LineSegment(Vector(190, -388, 0), Vector(190, -408, 0)),
    Part.LineSegment(Vector(190, -408, 0), Vector(195, -408, 0)),
    Part.LineSegment(Vector(195, -408, 0), Vector(195, -388, 0)),
    Part.LineSegment(Vector(195, -388, 0), Vector(190, -388, 0)),
], False)
sketch19.addConstraint([
    Sketcher.Constraint("Coincident", 0, 2, 1, 1),
    Sketcher.Constraint("Coincident", 1, 2, 2, 1),
    Sketcher.Constraint("Coincident", 2, 2, 3, 1),
    Sketcher.Constraint("Coincident", 3, 2, 0, 1),
    Sketcher.Constraint("Vertical", 0),
    Sketcher.Constraint("Horizontal", 1),
    Sketcher.Constraint("Vertical", 2),
    Sketcher.Constraint("Horizontal", 3),
    Sketcher.Constraint("DistanceX", 1, 1, 1, 2, Q("5 mm")),
    Sketcher.Constraint("DistanceY", 0, 2, 0, 1, Q("20 mm")),
    Sketcher.Constraint("DistanceX", -1, 1, 0, 2, Q("190 mm")),
    Sketcher.Constraint("DistanceY", 0, 2, -1, 1, Q("407.5 mm")),
])
pad18 = body.newObject("PartDesign::Pad", "Pad017")
pad18.Profile = sketch19
pad18.Length = 25
pad18.Reversed = True

sketch20 = body.newObject("Sketcher::SketchObject", "Sketch019")
sketch20.AttachmentSupport = (doc.getObject("YZ_Plane"), [""])
sketch20.MapMode = "FlatFace"
sketch20.AttachmentOffset = App.Placement(Vector(0, 0, -628.5), App.Rotation())
sketch20.addGeometry([
    Part.LineSegment(Vector(130, -408, 0), Vector(0, -408, 0)),
    Part.LineSegment(Vector(0, -408, 0), Vector(0, -388, 0)),
    Part.LineSegment(Vector(0, -388, 0), Vector(130, -388, 0)),
    Part.LineSegment(Vector(130, -388, 0), Vector(130, -408, 0)),
], False)
sketch20.addConstraint([
    Sketcher.Constraint("Coincident", 0, 2, 1, 1),
    Sketcher.Constraint("Coincident", 1, 2, 2, 1),
    Sketcher.Constraint("Coincident", 2, 2, 3, 1),
    Sketcher.Constraint("Coincident", 3, 2, 0, 1),
    Sketcher.Constraint("Horizontal", 0),
    Sketcher.Constraint("Vertical", 1),
    Sketcher.Constraint("Horizontal", 2),
    Sketcher.Constraint("Vertical", 3),
    Sketcher.Constraint("PointOnObject", 0, 2, -2),
    Sketcher.Constraint("DistanceX", 0, 2, 0, 1, Q("130 mm")),
    Sketcher.Constraint("DistanceY", 1, 1, 1, 2, Q("20 mm")),
    Sketcher.Constraint("DistanceY", 0, 2, -1, 1, Q("407.5 mm")),
])
pad19 = body.newObject("PartDesign::Pad", "Pad018")
pad19.Profile = sketch20
pad19.Length = 25

sketch21 = body.newObject("Sketcher::SketchObject", "Sketch020")
sketch21.AttachmentSupport = (doc.getObject("YZ_Plane"), [""])
sketch21.MapMode = "FlatFace"
sketch21.AttachmentOffset = App.Placement(Vector(0, 0, -628.5), App.Rotation())
sketch21.addGeometry([
    Part.LineSegment(Vector(275, -418, 0), Vector(245, -418, 0)),
    Part.LineSegment(Vector(245, -418, 0), Vector(245, -330, 0)),
    Part.LineSegment(Vector(245, -330, 0), Vector(275, -330, 0)),
    Part.LineSegment(Vector(275, -330, 0), Vector(275, -418, 0)),
], False)
sketch21.addConstraint([
    Sketcher.Constraint("Coincident", 0, 2, 1, 1),
    Sketcher.Constraint("Coincident", 1, 2, 2, 1),
    Sketcher.Constraint("Coincident", 2, 2, 3, 1),
    Sketcher.Constraint("Coincident", 3, 2, 0, 1),
    Sketcher.Constraint("Horizontal", 0),
    Sketcher.Constraint("Vertical", 1),
    Sketcher.Constraint("Horizontal", 2),
    Sketcher.Constraint("Vertical", 3),
    Sketcher.Constraint("DistanceX", 0, 2, 0, 1, Q("30 mm")),
    Sketcher.Constraint("DistanceY", 1, 1, 1, 2, Q("87.5 mm")),
    Sketcher.Constraint("DistanceX", -1, 1, 0, 2, Q("245 mm")),
    Sketcher.Constraint("DistanceY", 1, 2, -1, 1, Q("330 mm")),
])
pad20 = body.newObject("PartDesign::Pad", "Pad019")
pad20.Profile = sketch21
pad20.Length = 10
pad20.Reversed = True

sketch22 = body.newObject("Sketcher::SketchObject", "Sketch021")
sketch22.AttachmentSupport = (doc.getObject("XZ_Plane"), [""])
sketch22.MapMode = "FlatFace"
sketch22.AttachmentOffset = App.Placement(Vector(0, 0, -275), App.Rotation())
sketch22.addGeometry([
    Part.LineSegment(Vector(-568, -408, 0), Vector(-568, -412, 0)),
    Part.LineSegment(Vector(-568, -412, 0), Vector(-618, -412, 0)),
    Part.LineSegment(Vector(-618, -412, 0), Vector(-618, -408, 0)),
    Part.LineSegment(Vector(-618, -408, 0), Vector(-568, -408, 0)),
], False)
sketch22.addConstraint([
    Sketcher.Constraint("Coincident", 0, 2, 1, 1),
    Sketcher.Constraint("Coincident", 1, 2, 2, 1),
    Sketcher.Constraint("Coincident", 2, 2, 3, 1),
    Sketcher.Constraint("Coincident", 3, 2, 0, 1),
    Sketcher.Constraint("Vertical", 0),
    Sketcher.Constraint("Horizontal", 1),
    Sketcher.Constraint("Vertical", 2),
    Sketcher.Constraint("Horizontal", 3),
    Sketcher.Constraint("DistanceX", 1, 2, 1, 1, Q("50 mm")),
    Sketcher.Constraint("DistanceY", 0, 2, 0, 1, Q("5 mm")),
    Sketcher.Constraint("DistanceX", 0, 2, -1, 1, Q("568.5 mm")),
    Sketcher.Constraint("DistanceY", 0, 2, -1, 1, Q("412.5 mm")),
])
pocket2 = body.newObject("PartDesign::Pocket", "Pocket001")
pocket2.Profile = sketch22
pocket2.Length = 30
pocket2.Reversed = True

sketch23 = body.newObject("Sketcher::SketchObject", "Sketch022")
sketch23.AttachmentSupport = (doc.getObject("XZ_Plane"), [""])
sketch23.MapMode = "FlatFace"
sketch23.AttachmentOffset = App.Placement(Vector(0, 0, -55), App.Rotation())
sketch23.addGeometry([
    Part.LineSegment(Vector(-568, -388, 0), Vector(-568, -408, 0)),
    Part.LineSegment(Vector(-568, -408, 0), Vector(-588, -408, 0)),
    Part.LineSegment(Vector(-588, -408, 0), Vector(-588, -388, 0)),
    Part.LineSegment(Vector(-588, -388, 0), Vector(-568, -388, 0)),
], False)
sketch23.addConstraint([
    Sketcher.Constraint("Coincident", 0, 2, 1, 1),
    Sketcher.Constraint("Coincident", 1, 2, 2, 1),
    Sketcher.Constraint("Coincident", 2, 2, 3, 1),
    Sketcher.Constraint("Coincident", 3, 2, 0, 1),
    Sketcher.Constraint("Vertical", 0),
    Sketcher.Constraint("Horizontal", 1),
    Sketcher.Constraint("Vertical", 2),
    Sketcher.Constraint("Horizontal", 3),
    Sketcher.Constraint("Equal", 3, 0),
    Sketcher.Constraint("DistanceX", 1, 2, 1, 1, Q("20 mm")),
    Sketcher.Constraint("DistanceX", 0, 2, -1, 1, Q("568.5 mm")),
    Sketcher.Constraint("DistanceY", 0, 2, -1, 1, Q("407.5 mm")),
])
pad21 = body.newObject("PartDesign::Pad", "Pad020")
pad21.Profile = sketch23
pad21.Length = 190
pad21.Reversed = True

sketch24 = body.newObject("Sketcher::SketchObject", "Sketch023")
sketch24.AttachmentSupport = (doc.getObject("XZ_Plane"), [""])
sketch24.MapMode = "FlatFace"
sketch24.AttachmentOffset = App.Placement(Vector(0, 0, -195), App.Rotation())
sketch24.addGeometry([
    Part.LineSegment(Vector(-588, -388, 0), Vector(-588, -408, 0)),
    Part.LineSegment(Vector(-588, -408, 0), Vector(-618, -408, 0)),
    Part.LineSegment(Vector(-618, -408, 0), Vector(-618, -388, 0)),
    Part.LineSegment(Vector(-618, -388, 0), Vector(-588, -388, 0)),
], False)
sketch24.addConstraint([
    Sketcher.Constraint("Coincident", 0, 2, 1, 1),
    Sketcher.Constraint("Coincident", 1, 2, 2, 1),
    Sketcher.Constraint("Coincident", 2, 2, 3, 1),
    Sketcher.Constraint("Coincident", 3, 2, 0, 1),
    Sketcher.Constraint("Vertical", 0),
    Sketcher.Constraint("Horizontal", 1),
    Sketcher.Constraint("Vertical", 2),
    Sketcher.Constraint("Horizontal", 3),
    Sketcher.Constraint("DistanceX", 1, 2, 1, 1, Q("30 mm")),
    Sketcher.Constraint("DistanceY", 0, 2, 0, 1, Q("20 mm")),
    Sketcher.Constraint("DistanceX", 0, 2, -1, 1, Q("588.5 mm")),
    Sketcher.Constraint("DistanceY", 0, 2, -1, 1, Q("407.5 mm")),
])
pad22 = body.newObject("PartDesign::Pad", "Pad021")
pad22.Profile = sketch24
pad22.Length = 50
pad22.Reversed = True

sketch25 = body.newObject("Sketcher::SketchObject", "Sketch024")
sketch25.AttachmentSupport = (doc.getObject("XY_Plane"), [""])
sketch25.MapMode = "FlatFace"
sketch25.AttachmentOffset = App.Placement(Vector(0, 0, -417.5), App.Rotation())
sketch25.addGeometry([
    Part.LineSegment(Vector(-515, 275, 0), Vector(-515, 245, 0)),
    Part.LineSegment(Vector(-515, 245, 0), Vector(-628, 245, 0)),
    Part.LineSegment(Vector(-628, 245, 0), Vector(-628, 275, 0)),
    Part.LineSegment(Vector(-628, 275, 0), Vector(-515, 275, 0)),
], False)
sketch25.addConstraint([
    Sketcher.Constraint("Coincident", 0, 2, 1, 1),
    Sketcher.Constraint("Coincident", 1, 2, 2, 1),
    Sketcher.Constraint("Coincident", 2, 2, 3, 1),
    Sketcher.Constraint("Coincident", 3, 2, 0, 1),
    Sketcher.Constraint("Vertical", 0),
    Sketcher.Constraint("Horizontal", 1),
    Sketcher.Constraint("Vertical", 2),
    Sketcher.Constraint("Horizontal", 3),
    Sketcher.Constraint("DistanceY", 0, 2, 0, 1, Q("30 mm")),
    Sketcher.Constraint("DistanceX", 1, 2, 1, 1, Q("113.5 mm")),
    Sketcher.Constraint("DistanceX", 0, 2, -1, 1, Q("515 mm")),
    Sketcher.Constraint("DistanceY", -1, 1, 0, 2, Q("245 mm")),
])
pad23 = body.newObject("PartDesign::Pad", "Pad022")
pad23.Profile = sketch25
pad23.Length = 10
pad23.Reversed = True

sketch26 = body.newObject("Sketcher::SketchObject", "Sketch025")
sketch26.AttachmentSupport = (doc.getObject("YZ_Plane"), [""])
sketch26.MapMode = "FlatFace"
sketch26.AttachmentOffset = App.Placement(Vector(0, 0, -628.5), App.Rotation())
sketch26.addGeometry([
    Part.LineSegment(Vector(0, 408, 0), Vector(130, 408, 0)),
    Part.LineSegment(Vector(130, 408, 0), Vector(130, 388, 0)),
    Part.LineSegment(Vector(130, 388, 0), Vector(0, 388, 0)),
    Part.LineSegment(Vector(0, 388, 0), Vector(0, 408, 0)),
], False)
sketch26.addConstraint([
    Sketcher.Constraint("Coincident", 0, 2, 1, 1),
    Sketcher.Constraint("Coincident", 1, 2, 2, 1),
    Sketcher.Constraint("Coincident", 2, 2, 3, 1),
    Sketcher.Constraint("Coincident", 3, 2, 0, 1),
    Sketcher.Constraint("Horizontal", 0),
    Sketcher.Constraint("Vertical", 1),
    Sketcher.Constraint("Horizontal", 2),
    Sketcher.Constraint("Vertical", 3),
    Sketcher.Constraint("PointOnObject", 2, 2, -2),
    Sketcher.Constraint("DistanceX", 0, 1, 0, 2, Q("130 mm")),
    Sketcher.Constraint("DistanceY", 1, 2, 1, 1, Q("20 mm")),
    Sketcher.Constraint("DistanceY", -1, 1, 0, 2, Q("407.5 mm")),
])
pad24 = body.newObject("PartDesign::Pad", "Pad023")
pad24.Profile = sketch26
pad24.Length = 25

sketch27 = body.newObject("Sketcher::SketchObject", "Sketch026")
sketch27.AttachmentSupport = (doc.getObject("XZ_Plane"), [""])
sketch27.MapMode = "FlatFace"
sketch27.AttachmentOffset = App.Placement(Vector(0, 0, -195), App.Rotation())
sketch27.addGeometry([
    Part.LineSegment(Vector(-588, 408, 0), Vector(-588, 388, 0)),
    Part.LineSegment(Vector(-588, 388, 0), Vector(-618, 388, 0)),
    Part.LineSegment(Vector(-618, 388, 0), Vector(-618, 408, 0)),
    Part.LineSegment(Vector(-618, 408, 0), Vector(-588, 408, 0)),
], False)
sketch27.addConstraint([
    Sketcher.Constraint("Coincident", 0, 2, 1, 1),
    Sketcher.Constraint("Coincident", 1, 2, 2, 1),
    Sketcher.Constraint("Coincident", 2, 2, 3, 1),
    Sketcher.Constraint("Coincident", 3, 2, 0, 1),
    Sketcher.Constraint("Vertical", 0),
    Sketcher.Constraint("Horizontal", 1),
    Sketcher.Constraint("Vertical", 2),
    Sketcher.Constraint("Horizontal", 3),
    Sketcher.Constraint("DistanceX", 1, 2, 1, 1, Q("30 mm")),
    Sketcher.Constraint("DistanceY", 0, 2, 0, 1, Q("20 mm")),
    Sketcher.Constraint("DistanceX", 0, 2, -1, 1, Q("588.5 mm")),
    Sketcher.Constraint("DistanceY", -1, 1, 0, 2, Q("387.5 mm")),
])
pad25 = body.newObject("PartDesign::Pad", "Pad024")
pad25.Profile = sketch27
pad25.Length = 50
pad25.Reversed = True
body2 = doc.addObject("PartDesign::Body", "Body001")

sketch28 = body2.newObject("Sketcher::SketchObject", "Sketch027")
sketch28.AttachmentSupport = (doc.getObject("YZ_Plane001"), [""])
sketch28.MapMode = "FlatFace"
sketch28.AttachmentOffset = App.Placement(Vector(0, 0, 335), App.Rotation())
sketch28.addGeometry(Part.Circle(Vector(108, -408, 0), Vector(0, 0, 1), 8), False)
sketch28.addConstraint([
    Sketcher.Constraint("Diameter", 0, Q("15 mm")),
    Sketcher.Constraint("DistanceX", -1, 1, 0, 3, Q("107.5 mm")),
    Sketcher.Constraint("DistanceY", 0, 3, -1, 1, Q("407.5 mm")),
])
pad26 = body2.newObject("PartDesign::Pad", "Pad025")
pad26.Profile = sketch28
pad26.Length = 50
body3 = doc.addObject("PartDesign::Body", "Body002")
doc.recompute()

mirroring = doc.addObject("Part::Mirroring", "Mirroring")
mirroring.Source = body2
mirroring.Base = Vector(0, 0, 0)
mirroring.Normal = Vector(1, 0, 0)
body3.BaseFeature = mirroring
doc.recompute()
body4 = doc.addObject("PartDesign::Body", "Body003")
doc.recompute()

mirroring2 = doc.addObject("Part::Mirroring", "Mirroring001")
mirroring2.Source = body3
mirroring2.Base = Vector(0, 0, 0)
mirroring2.Normal = Vector(0, 0, 1)
body4.BaseFeature = mirroring2
doc.recompute()
body5 = doc.addObject("PartDesign::Body", "Body004")
doc.recompute()

mirroring3 = doc.addObject("Part::Mirroring", "Mirroring002")
mirroring3.Source = body2
mirroring3.Base = Vector(0, 0, 0)
mirroring3.Normal = Vector(0, 0, 1)
body5.BaseFeature = mirroring3
doc.recompute()
mirroring.Visibility = False
mirroring2.Visibility = False
mirroring3.Visibility = False

doc.recompute()
